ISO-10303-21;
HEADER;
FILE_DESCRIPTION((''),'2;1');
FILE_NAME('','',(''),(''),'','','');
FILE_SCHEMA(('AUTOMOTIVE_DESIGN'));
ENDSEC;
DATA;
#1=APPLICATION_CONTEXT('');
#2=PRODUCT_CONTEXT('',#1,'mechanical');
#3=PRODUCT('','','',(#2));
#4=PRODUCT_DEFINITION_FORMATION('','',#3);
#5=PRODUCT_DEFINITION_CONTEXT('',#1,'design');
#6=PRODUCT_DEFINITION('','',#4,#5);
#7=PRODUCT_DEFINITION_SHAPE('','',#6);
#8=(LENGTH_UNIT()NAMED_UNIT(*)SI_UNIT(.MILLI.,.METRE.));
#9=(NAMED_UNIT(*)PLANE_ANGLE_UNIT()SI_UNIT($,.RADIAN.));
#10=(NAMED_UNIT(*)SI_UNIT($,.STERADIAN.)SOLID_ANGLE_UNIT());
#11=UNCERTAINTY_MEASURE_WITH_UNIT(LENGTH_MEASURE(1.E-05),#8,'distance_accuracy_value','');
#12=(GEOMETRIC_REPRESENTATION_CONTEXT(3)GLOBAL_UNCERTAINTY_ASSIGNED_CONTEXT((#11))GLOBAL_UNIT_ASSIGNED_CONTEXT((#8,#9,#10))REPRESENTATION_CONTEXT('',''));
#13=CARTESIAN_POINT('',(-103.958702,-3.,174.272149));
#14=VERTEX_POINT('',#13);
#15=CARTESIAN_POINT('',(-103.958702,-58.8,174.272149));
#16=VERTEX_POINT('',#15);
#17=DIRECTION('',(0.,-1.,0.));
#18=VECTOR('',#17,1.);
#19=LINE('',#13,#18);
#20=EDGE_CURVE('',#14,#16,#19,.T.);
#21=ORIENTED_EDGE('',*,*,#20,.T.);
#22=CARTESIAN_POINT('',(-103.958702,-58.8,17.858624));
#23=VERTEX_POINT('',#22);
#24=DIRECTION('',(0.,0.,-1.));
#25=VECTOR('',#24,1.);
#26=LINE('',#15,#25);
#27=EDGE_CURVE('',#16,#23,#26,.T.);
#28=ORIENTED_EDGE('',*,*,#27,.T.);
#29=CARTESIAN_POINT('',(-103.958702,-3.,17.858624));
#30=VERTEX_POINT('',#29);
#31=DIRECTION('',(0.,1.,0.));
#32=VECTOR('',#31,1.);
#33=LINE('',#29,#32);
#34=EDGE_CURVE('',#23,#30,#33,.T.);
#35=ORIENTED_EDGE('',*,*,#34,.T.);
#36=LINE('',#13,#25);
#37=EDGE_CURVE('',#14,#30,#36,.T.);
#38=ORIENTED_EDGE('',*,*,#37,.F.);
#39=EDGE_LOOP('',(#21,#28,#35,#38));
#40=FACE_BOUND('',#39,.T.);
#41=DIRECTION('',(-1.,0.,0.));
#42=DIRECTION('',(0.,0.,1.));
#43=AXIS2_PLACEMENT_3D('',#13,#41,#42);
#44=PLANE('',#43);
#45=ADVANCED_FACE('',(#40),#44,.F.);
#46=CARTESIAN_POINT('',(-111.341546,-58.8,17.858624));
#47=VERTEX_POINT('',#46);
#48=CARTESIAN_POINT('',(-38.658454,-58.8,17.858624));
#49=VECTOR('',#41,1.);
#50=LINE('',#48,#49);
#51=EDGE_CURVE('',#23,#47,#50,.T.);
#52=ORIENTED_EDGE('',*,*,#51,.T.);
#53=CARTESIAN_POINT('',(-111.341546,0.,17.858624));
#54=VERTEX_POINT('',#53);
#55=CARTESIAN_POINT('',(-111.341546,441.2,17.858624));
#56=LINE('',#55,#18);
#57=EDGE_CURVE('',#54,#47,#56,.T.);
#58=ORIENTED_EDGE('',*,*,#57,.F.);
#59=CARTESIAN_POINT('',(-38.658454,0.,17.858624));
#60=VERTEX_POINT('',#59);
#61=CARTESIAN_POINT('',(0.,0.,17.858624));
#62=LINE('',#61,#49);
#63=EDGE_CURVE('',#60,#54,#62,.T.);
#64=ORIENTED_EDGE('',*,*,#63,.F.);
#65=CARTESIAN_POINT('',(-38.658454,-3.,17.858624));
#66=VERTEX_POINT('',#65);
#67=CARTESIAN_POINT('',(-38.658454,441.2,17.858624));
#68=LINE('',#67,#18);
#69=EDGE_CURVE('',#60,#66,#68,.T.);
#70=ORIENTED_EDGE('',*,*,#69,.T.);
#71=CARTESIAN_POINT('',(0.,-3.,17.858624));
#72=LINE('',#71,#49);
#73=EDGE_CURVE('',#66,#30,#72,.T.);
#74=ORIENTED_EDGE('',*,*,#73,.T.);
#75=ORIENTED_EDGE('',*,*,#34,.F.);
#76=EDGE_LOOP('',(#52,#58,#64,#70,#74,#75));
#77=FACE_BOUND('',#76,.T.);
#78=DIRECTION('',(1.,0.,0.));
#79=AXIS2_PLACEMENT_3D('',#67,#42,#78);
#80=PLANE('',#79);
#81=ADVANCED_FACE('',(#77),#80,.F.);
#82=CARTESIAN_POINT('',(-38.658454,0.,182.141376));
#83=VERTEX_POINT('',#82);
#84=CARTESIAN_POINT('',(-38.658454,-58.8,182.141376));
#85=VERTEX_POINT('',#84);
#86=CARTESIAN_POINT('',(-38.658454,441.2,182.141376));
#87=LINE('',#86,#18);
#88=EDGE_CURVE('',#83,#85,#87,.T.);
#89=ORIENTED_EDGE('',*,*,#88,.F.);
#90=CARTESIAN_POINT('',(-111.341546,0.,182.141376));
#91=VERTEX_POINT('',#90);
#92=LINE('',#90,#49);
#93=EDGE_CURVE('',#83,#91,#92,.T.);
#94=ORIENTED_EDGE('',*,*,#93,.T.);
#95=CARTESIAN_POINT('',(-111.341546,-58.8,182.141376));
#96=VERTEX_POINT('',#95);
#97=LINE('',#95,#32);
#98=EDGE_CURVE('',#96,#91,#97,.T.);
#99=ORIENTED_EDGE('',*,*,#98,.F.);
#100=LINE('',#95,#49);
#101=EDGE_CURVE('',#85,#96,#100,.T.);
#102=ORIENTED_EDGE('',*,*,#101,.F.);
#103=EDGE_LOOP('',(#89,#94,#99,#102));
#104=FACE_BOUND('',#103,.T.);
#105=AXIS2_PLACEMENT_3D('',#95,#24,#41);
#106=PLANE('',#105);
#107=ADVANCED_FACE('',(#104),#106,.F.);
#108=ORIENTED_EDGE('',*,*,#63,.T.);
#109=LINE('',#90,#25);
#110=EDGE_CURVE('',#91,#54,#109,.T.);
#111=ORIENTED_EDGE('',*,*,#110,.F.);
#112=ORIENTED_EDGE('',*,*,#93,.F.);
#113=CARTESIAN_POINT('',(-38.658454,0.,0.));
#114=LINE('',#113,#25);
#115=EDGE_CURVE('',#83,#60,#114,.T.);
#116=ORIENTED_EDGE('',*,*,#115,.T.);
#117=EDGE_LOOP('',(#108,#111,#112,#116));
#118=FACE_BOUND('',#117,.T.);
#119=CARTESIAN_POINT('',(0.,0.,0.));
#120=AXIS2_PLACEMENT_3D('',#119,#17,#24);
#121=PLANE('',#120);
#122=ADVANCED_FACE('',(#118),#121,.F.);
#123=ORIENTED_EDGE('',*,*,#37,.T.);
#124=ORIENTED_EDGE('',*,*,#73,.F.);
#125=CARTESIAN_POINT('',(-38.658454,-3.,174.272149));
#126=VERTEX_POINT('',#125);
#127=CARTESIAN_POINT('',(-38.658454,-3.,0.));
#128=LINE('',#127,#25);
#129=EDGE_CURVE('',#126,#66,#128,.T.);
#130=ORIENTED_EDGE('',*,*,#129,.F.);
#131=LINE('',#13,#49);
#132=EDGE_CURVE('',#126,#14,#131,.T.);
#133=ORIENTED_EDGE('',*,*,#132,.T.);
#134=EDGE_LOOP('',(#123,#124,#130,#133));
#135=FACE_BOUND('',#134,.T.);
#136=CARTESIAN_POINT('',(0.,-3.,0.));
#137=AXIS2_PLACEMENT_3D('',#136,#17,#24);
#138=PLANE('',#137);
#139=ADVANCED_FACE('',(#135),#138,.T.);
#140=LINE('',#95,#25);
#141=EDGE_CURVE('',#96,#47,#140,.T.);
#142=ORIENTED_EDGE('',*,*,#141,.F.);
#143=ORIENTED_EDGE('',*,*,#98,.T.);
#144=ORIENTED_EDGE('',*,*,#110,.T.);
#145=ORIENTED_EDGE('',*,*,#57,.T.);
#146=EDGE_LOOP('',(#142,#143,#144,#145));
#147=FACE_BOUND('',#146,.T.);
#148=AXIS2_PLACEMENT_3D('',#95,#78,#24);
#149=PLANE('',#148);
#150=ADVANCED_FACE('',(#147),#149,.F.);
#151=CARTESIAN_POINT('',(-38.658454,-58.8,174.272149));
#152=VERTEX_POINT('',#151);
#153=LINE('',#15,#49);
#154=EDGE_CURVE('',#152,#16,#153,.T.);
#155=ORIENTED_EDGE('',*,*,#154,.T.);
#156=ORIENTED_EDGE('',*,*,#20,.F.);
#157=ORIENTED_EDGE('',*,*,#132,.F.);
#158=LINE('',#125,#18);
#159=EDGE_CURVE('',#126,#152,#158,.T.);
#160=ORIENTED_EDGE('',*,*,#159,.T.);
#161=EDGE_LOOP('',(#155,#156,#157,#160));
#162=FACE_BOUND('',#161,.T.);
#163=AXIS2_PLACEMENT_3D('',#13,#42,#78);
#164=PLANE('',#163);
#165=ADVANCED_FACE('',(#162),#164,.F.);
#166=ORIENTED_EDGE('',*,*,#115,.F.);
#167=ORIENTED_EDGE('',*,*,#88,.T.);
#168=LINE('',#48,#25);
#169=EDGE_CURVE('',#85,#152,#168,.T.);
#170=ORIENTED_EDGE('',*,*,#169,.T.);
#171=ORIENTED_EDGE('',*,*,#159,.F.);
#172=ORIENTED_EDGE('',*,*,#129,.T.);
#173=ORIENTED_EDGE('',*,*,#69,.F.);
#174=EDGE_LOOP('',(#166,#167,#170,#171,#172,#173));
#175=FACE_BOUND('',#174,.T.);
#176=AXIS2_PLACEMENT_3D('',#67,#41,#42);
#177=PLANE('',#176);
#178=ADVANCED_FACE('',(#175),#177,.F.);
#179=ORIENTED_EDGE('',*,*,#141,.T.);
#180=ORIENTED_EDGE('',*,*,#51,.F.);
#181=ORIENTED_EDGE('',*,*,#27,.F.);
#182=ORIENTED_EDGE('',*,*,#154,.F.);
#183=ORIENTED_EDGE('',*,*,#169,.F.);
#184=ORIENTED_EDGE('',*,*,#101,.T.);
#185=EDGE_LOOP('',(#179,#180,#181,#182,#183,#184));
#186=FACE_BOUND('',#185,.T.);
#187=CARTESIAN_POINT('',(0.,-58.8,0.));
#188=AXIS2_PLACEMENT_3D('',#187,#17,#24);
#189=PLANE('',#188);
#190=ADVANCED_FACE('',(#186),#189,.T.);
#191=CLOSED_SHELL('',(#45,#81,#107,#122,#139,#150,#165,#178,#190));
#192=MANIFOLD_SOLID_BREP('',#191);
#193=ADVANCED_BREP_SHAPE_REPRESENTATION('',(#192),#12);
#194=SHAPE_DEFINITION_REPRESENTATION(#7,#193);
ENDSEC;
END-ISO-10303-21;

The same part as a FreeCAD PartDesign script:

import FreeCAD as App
import Part
import Sketcher
from FreeCAD import Vector


def add_polygon(sketch, points):
    """Adds a closed chain of lines whose ends are joined by coincident constraints."""
    first, n = sketch.GeometryCount, len(points)
    for a, b in zip(points, points[1:] + points[:1]):
        sketch.addGeometry(Part.LineSegment(App.Vector(*a, 0), App.Vector(*b, 0)), False)
    for i in range(n):
        sketch.addConstraint(Sketcher.Constraint("Coincident", first + i, 2, first + (i + 1) % n, 1))

doc = App.newDocument("Part")
params = doc.addObject("Spreadsheet::Sheet", "Params")
for row, (alias, value) in enumerate([
    ("sketch1_diameter", "56.2 mm"),
    ("pad1_length", "1 mm"),
    ("sketch2_diameter", "37.2 mm"),
    ("pocket1_length", "58.8 mm"),
    ("pad2_length", "58.8 mm"),
    ("pocket2_length", "55.8 mm"),
    ("sketch5_diameter", "6 mm"),
    ("pocket3_length", "10 mm"),
    ("sketch6_diameter", "7.5 mm"),
    ("pocket4_length", "10 mm"),
    ("sketch7_width", "150 mm"),
    ("sketch7_height", "200 mm"),
    ("pocket5_length", "500 mm"),
    ("sketch8_diameter", "7.5 mm"),
    ("pocket6_length", "400 mm"),
    ("sketch9_diameter", "20 mm"),
    ("pocket7_length", "10 mm"),
], start=1):
    params.set(f"A{row}", alias)
    params.set(f"B{row}", "=" + value)
    params.setAlias(f"B{row}", alias)

body = doc.addObject("PartDesign::Body", "Body")

# Sketch on XZ plane
sketch1 = doc.addObject("Sketcher::SketchObject", "Sketch")
body.addObject(sketch1)
sketch1.AttachmentSupport = (doc.XZ_Plane, [""])
sketch1.MapMode = "FlatFace"
sketch1.addGeometry(Part.Circle(Vector(0, 0, 0), Vector(0, 0, 1), 28), False)
sketch1.addConstraint([
    Sketcher.Constraint("Coincident", 0, 3, -1, 1),
    Sketcher.Constraint("Diameter", 0, 56.2),
])
sketch1.setExpression("Constraints[1]", "Params.sketch1_diameter")
pad1 = doc.addObject("PartDesign::Pad", "Pad")
body.addObject(pad1)
pad1.Profile = sketch1
pad1.setExpression("Length", "Params.pad1_length")
pad1.Reversed = True

# Sketch on XZ plane
sketch2 = doc.addObject("Sketcher::SketchObject", "Sketch001")
body.addObject(sketch2)
sketch2.AttachmentSupport = (doc.XZ_Plane, [""])
sketch2.MapMode = "FlatFace"
sketch2.AttachmentOffset = App.Placement(Vector(0, 0, -1), App.Rotation())
sketch2.addGeometry(Part.Circle(Vector(0, 7, 0), Vector(0, 0, 1), 19), False)
sketch2.addConstraint([
    Sketcher.Constraint("PointOnObject", 0, 3, -2),
    Sketcher.Constraint("Diameter", 0, 37.2),
    Sketcher.Constraint("DistanceY", -1, 1, 0, 3, 7.0),
])
sketch2.setExpression("Constraints[1]", "Params.sketch2_diameter")
pocket1 = doc.addObject("PartDesign::Pocket", "Pocket")
body.addObject(pocket1)
pocket1.Profile = sketch2
pocket1.setExpression("Length", "Params.pocket1_length")
pocket1.Reversed = True

# Sketch on XZ plane
sketch3 = doc.addObject("Sketcher::SketchObject", "Sketch002")
body.addObject(sketch3)
sketch3.AttachmentSupport = (doc.XZ_Plane, [""])
sketch3.MapMode = "FlatFace"
add_polygon(sketch3, [(111, -182), (111, 182), (-111, 182), (-111, -182)])  # lines 0-3
sketch3.addConstraint([
    Sketcher.Constraint("Vertical", 0),
    Sketcher.Constraint("Horizontal", 1),
    Sketcher.Constraint("Vertical", 2),
    Sketcher.Constraint("Horizontal", 3),
    Sketcher.Constraint("Symmetric", 0, 2, 2, 2, -1, 1),
    Sketcher.Constraint("DistanceX", 1, 2, 1, 1, 222.683092),
    Sketcher.Constraint("DistanceY", 0, 1, 0, 2, 364.282752),
])
pad2 = doc.addObject("PartDesign::Pad", "Pad001")
body.addObject(pad2)
pad2.Profile = sketch3
pad2.setExpression("Length", "Params.pad2_length")

# Sketch on XZ plane
sketch4 = doc.addObject("Sketcher::SketchObject", "Sketch003")
body.addObject(sketch4)
sketch4.AttachmentSupport = (doc.XZ_Plane, [""])
sketch4.MapMode = "FlatFace"
sketch4.AttachmentOffset = App.Placement(Vector(0, 0, 58.8), App.Rotation())
add_polygon(sketch4, [(104, -174), (104, 174), (-104, 174), (-104, -174)])  # lines 0-3
sketch4.addConstraint([
    Sketcher.Constraint("Vertical", 0),
    Sketcher.Constraint("Horizontal", 1),
    Sketcher.Constraint("Vertical", 2),
    Sketcher.Constraint("Horizontal", 3),
    Sketcher.Constraint("Symmetric", 0, 2, 2, 2, -1, 1),
    Sketcher.Constraint("DistanceX", -1, 1, 0, 2, 103.958702),
    Sketcher.Constraint("DistanceY", 0, 1, 0, 2, 348.544298),
])
pocket2 = doc.addObject("PartDesign::Pocket", "Pocket001")
body.addObject(pocket2)
pocket2.Profile = sketch4
pocket2.setExpression("Length", "Params.pocket2_length")

# Sketch on XZ plane
sketch5 = doc.addObject("Sketcher::SketchObject", "Sketch004")
body.addObject(sketch5)
sketch5.AttachmentSupport = (doc.XZ_Plane, [""])
sketch5.MapMode = "FlatFace"
sketch5.addGeometry(Part.Circle(Vector(0, 7, 0), Vector(0, 0, 1), 3), False)
sketch5.addConstraint([
    Sketcher.Constraint("PointOnObject", 0, 3, -2),
    Sketcher.Constraint("Diameter", 0, 6.0),
    Sketcher.Constraint("DistanceY", -1, 1, 0, 3, 7.0),
])
sketch5.setExpression("Constraints[1]", "Params.sketch5_diameter")
pocket3 = doc.addObject("PartDesign::Pocket", "Pocket002")
body.addObject(pocket3)
pocket3.Profile = sketch5
pocket3.setExpression("Length", "Params.pocket3_length")
pocket3.Reversed = True

# Sketch on XZ plane
sketch6 = doc.addObject("Sketcher::SketchObject", "Sketch005")
body.addObject(sketch6)
sketch6.AttachmentSupport = (doc.XZ_Plane, [""])
sketch6.MapMode = "FlatFace"
sketch6.AttachmentOffset = App.Placement(Vector(0, 0, -1), App.Rotation())
sketch6.addGeometry(Part.Circle(Vector(0, -19.9, 0), Vector(0, 0, 1), 3.8), False)
sketch6.addConstraint([
    Sketcher.Constraint("PointOnObject", 0, 3, -2),
    Sketcher.Constraint("Diameter", 0, 7.5),
    Sketcher.Constraint("DistanceY", 0, 3, -1, 1, 19.85),
])
sketch6.setExpression("Constraints[1]", "Params.sketch6_diameter")
pocket4 = doc.addObject("PartDesign::Pocket", "Pocket003")
body.addObject(pocket4)
pocket4.Profile = sketch6
pocket4.setExpression("Length", "Params.pocket4_length")
pocket4.Reversed = True

# Sketch on XZ plane
sketch7 = doc.addObject("Sketcher::SketchObject", "Sketch006")
body.addObject(sketch7)
sketch7.AttachmentSupport = (doc.XZ_Plane, [""])
sketch7.MapMode = "FlatFace"
sketch7.AttachmentOffset = App.Placement(Vector(0, 0, 58.8), App.Rotation())
add_polygon(sketch7, [(-39, 182), (-39, 18), (-111, 18), (-111, -182), (111, -182), (111, 182)])  # lines 0-5
sketch7.addConstraint([
    Sketcher.Constraint("Vertical", 0),
    Sketcher.Constraint("Horizontal", 1),
    Sketcher.Constraint("Vertical", 2),
    Sketcher.Constraint("Horizontal", 3),
    Sketcher.Constraint("Vertical", 4),
    Sketcher.Constraint("Horizontal", 5),
    Sketcher.Constraint("Symmetric", 2, 2, 4, 2, -1, 1),
    Sketcher.Constraint("DistanceX", 5, 2, 5, 1, 150.0),
    Sketcher.Constraint("DistanceY", 2, 2, 2, 1, 200.0),
    Sketcher.Constraint("DistanceX", 1, 2, 1, 1, 72.683092),
    Sketcher.Constraint("DistanceY", 0, 2, 0, 1, 164.282752),
])
sketch7.setExpression("Constraints[13]", "Params.sketch7_width")
sketch7.setExpression("Constraints[14]", "Params.sketch7_height")
pocket5 = doc.addObject("PartDesign::Pocket", "Pocket004")
body.addObject(pocket5)
pocket5.Profile = sketch7
pocket5.setExpression("Length", "Params.pocket5_length")

# Sketch on XZ plane
sketch8 = doc.addObject("Sketcher::SketchObject", "Sketch007")
body.addObject(sketch8)
sketch8.AttachmentSupport = (doc.XZ_Plane, [""])
sketch8.MapMode = "FlatFace"
sketch8.AttachmentOffset = App.Placement(Vector(0, 0, -1), App.Rotation())
sketch8.addGeometry(Part.Circle(Vector(0, -18.8, 0), Vector(0, 0, 1), 3.8), False)
sketch8.addConstraint([
    Sketcher.Constraint("PointOnObject", 0, 3, -2),
    Sketcher.Constraint("Diameter", 0, 7.5),
    Sketcher.Constraint("DistanceY", 0, 3, -1, 1, 18.75),
])
sketch8.setExpression("Constraints[1]", "Params.sketch8_diameter")
pocket6 = doc.addObject("PartDesign::Pocket", "Pocket005")
body.addObject(pocket6)
pocket6.Profile = sketch8
pocket6.setExpression("Length", "Params.pocket6_length")
pocket6.Reversed = True

# Sketch on XY plane
sketch9 = doc.addObject("Sketcher::SketchObject", "Sketch008")
body.addObject(sketch9)
sketch9.AttachmentSupport = (doc.XY_Plane, [""])
sketch9.MapMode = "FlatFace"
sketch9.AttachmentOffset = App.Placement(Vector(0, 0, -182.141376), App.Rotation())
sketch9.addGeometry(Part.Circle(Vector(87, -25, 0), Vector(0, 0, 1), 10), False)
sketch9.addConstraint([
    Sketcher.Constraint("Diameter", 0, 20.0),
    Sketcher.Constraint("DistanceX", -1, 1, 0, 3, 86.573672),
    Sketcher.Constraint("DistanceY", 0, 3, -1, 1, 25.011155),
])
sketch9.setExpression("Constraints[0]", "Params.sketch9_diameter")
pocket7 = doc.addObject("PartDesign::Pocket", "Pocket006")
body.addObject(pocket7)
pocket7.Profile = sketch9
pocket7.setExpression("Length", "Params.pocket7_length")
pocket7.Reversed = True

doc.recompute()
